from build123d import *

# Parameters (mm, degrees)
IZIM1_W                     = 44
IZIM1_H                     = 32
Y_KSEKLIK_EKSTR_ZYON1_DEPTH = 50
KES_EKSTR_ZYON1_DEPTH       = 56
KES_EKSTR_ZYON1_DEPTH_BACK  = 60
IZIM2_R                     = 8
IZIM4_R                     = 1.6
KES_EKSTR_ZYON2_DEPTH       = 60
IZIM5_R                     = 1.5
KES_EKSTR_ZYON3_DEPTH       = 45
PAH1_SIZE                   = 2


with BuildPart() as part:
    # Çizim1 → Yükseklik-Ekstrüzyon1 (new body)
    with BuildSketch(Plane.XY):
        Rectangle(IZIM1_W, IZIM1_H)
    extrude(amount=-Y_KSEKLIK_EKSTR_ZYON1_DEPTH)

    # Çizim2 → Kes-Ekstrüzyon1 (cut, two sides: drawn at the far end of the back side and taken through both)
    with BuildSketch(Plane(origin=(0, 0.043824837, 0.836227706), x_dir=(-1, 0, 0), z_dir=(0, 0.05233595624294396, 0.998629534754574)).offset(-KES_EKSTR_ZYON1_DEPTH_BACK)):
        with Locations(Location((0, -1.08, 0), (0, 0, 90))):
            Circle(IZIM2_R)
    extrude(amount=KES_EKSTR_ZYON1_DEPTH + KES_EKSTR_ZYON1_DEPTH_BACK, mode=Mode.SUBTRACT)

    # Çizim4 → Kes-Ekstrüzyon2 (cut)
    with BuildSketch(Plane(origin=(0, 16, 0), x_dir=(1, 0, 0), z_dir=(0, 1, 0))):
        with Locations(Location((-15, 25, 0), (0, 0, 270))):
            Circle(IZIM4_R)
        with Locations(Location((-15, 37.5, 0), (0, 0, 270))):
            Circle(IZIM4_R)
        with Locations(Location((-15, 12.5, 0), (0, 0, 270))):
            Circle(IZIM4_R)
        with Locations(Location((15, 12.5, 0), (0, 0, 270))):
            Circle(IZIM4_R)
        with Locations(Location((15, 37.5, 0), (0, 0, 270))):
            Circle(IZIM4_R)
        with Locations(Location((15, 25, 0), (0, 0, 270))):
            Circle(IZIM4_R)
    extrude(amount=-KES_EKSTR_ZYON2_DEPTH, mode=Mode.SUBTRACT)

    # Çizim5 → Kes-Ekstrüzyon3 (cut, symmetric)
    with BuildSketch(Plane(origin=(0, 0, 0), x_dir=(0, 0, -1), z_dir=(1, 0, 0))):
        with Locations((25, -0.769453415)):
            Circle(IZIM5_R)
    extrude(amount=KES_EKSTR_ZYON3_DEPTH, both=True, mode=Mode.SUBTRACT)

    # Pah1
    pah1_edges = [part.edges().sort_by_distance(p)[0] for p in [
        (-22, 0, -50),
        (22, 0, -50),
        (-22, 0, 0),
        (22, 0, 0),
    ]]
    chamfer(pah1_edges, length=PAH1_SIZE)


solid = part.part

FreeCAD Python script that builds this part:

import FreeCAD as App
import Part
import Sketcher
Q = App.Units.Quantity


def edges_at(feature, points):
    """Names of the edges that pass closest to the given points."""
    edges = feature.Shape.Edges
    near = lambda p: min(range(len(edges)), key=lambda i: edges[i].distToShape(Part.Vertex(*p))[0])
    return sorted({f"Edge{near(p) + 1}" for p in points})


def add_polygon(sketch, points):
    """Adds a closed chain of lines whose ends are joined by coincident constraints."""
    first, n = sketch.GeometryCount, len(points)
    for a, b in zip(points, points[1:] + points[:1]):
        sketch.addGeometry(Part.LineSegment(App.Vector(*a, 0), App.Vector(*b, 0)), False)
    for i in range(n):
        sketch.addConstraint(Sketcher.Constraint("Coincident", first + i, 2, first + (i + 1) % n, 1))

doc = App.newDocument("Part")
params = doc.addObject("Spreadsheet::Sheet", "Params")
for row, (alias, value) in enumerate([
    ("sketch1_width", "44 mm"),
    ("sketch1_height", "32 mm"),
    ("pad1_length", "50 mm"),
    ("sketch2_diameter", "16 mm"),
    ("sketch3_diameter", "3.2 mm"),
    ("pocket2_length", "60 mm"),
    ("sketch4_diameter", "3 mm"),
    ("pocket3_length", "90 mm"),
    ("chamfer_size", "2 mm"),
], start=1):
    params.set(f"A{row}", alias)
    params.set(f"B{row}", "=" + value)
    params.setAlias(f"B{row}", alias)

body = doc.addObject("PartDesign::Body", "Body")

# Sketch on XY plane
sketch1 = body.newObject("Sketcher::SketchObject", "Sketch")
sketch1.AttachmentSupport = (doc.getObject("XY_Plane"), [""])
sketch1.MapMode = "FlatFace"
add_polygon(sketch1, [(-22, 16), (-22, -16), (22, -16), (22, 16)])  # lines 0-3
sketch1.addConstraint(Sketcher.Constraint("Vertical", 0))
sketch1.addConstraint(Sketcher.Constraint("Horizontal", 1))
sketch1.addConstraint(Sketcher.Constraint("Vertical", 2))
sketch1.addConstraint(Sketcher.Constraint("Horizontal", 3))
sketch1.addConstraint(Sketcher.Constraint("Symmetric", 0, 2, 2, 2, -1, 1))
sketch1.addConstraint(Sketcher.Constraint("DistanceX", 1, 1, 1, 2, Q("44 mm")))
sketch1.addConstraint(Sketcher.Constraint("DistanceY", 0, 2, 0, 1, Q("32 mm")))
sketch1.setExpression("Constraints[9]", "Params.sketch1_width")
sketch1.setExpression("Constraints[10]", "Params.sketch1_height")
pad1 = body.newObject("PartDesign::Pad", "Pad")
pad1.Profile = sketch1
pad1.setExpression("Length", "Params.pad1_length")
pad1.Reversed = True

# Sketch on an angled plane
sketch2 = body.newObject("Sketcher::SketchObject", "Sketch001")
sketch2.Placement = App.Placement(App.Vector(0, 0.043825, 0.836228), App.Rotation(App.Vector(-1, 0, 0), App.Vector(0, -0.998629535, 0.052335956), App.Vector(0, 0.052335956, 0.998629535), "ZXY"))
sketch2.addGeometry(Part.Circle(App.Vector(0, -1, 0), App.Vector(0, 0, 1), 8), False)
sketch2.addConstraint(Sketcher.Constraint("PointOnObject", 0, 3, -2))
sketch2.addConstraint(Sketcher.Constraint("Diameter", 0, Q("16 mm")))
sketch2.addConstraint(Sketcher.Constraint("DistanceY", 0, 3, -1, 1, Q("1.08 mm")))
sketch2.setExpression("Constraints[1]", "Params.sketch2_diameter")
pocket1 = body.newObject("PartDesign::Pocket", "Pocket")
pocket1.Profile = sketch2
pocket1.Type = "ThroughAll"
pocket1.Midplane = True

# Sketch on XZ plane
sketch3 = body.newObject("Sketcher::SketchObject", "Sketch002")
sketch3.AttachmentSupport = (doc.getObject("XZ_Plane"), [""])
sketch3.MapMode = "FlatFace"
sketch3.AttachmentOffset = App.Placement(App.Vector(0, 0, -16), App.Rotation())
sketch3.addGeometry(Part.Circle(App.Vector(-15, -25, 0), App.Vector(0, 0, 1), 1.6), False)
sketch3.addGeometry(Part.Circle(App.Vector(-15, -37.5, 0), App.Vector(0, 0, 1), 1.6), False)
sketch3.addGeometry(Part.Circle(App.Vector(-15, -12.5, 0), App.Vector(0, 0, 1), 1.6), False)
sketch3.addGeometry(Part.Circle(App.Vector(15, -12.5, 0), App.Vector(0, 0, 1), 1.6), False)
sketch3.addGeometry(Part.Circle(App.Vector(15, -37.5, 0), App.Vector(0, 0, 1), 1.6), False)
sketch3.addGeometry(Part.Circle(App.Vector(15, -25, 0), App.Vector(0, 0, 1), 1.6), False)
sketch3.addConstraint(Sketcher.Constraint("Equal", 0, 1))
sketch3.addConstraint(Sketcher.Constraint("Equal", 1, 2))
sketch3.addConstraint(Sketcher.Constraint("Equal", 2, 3))
sketch3.addConstraint(Sketcher.Constraint("Equal", 3, 4))
sketch3.addConstraint(Sketcher.Constraint("Equal", 4, 5))
sketch3.addConstraint(Sketcher.Constraint("Symmetric", 2, 3, 3, 3, -2))
sketch3.addConstraint(Sketcher.Constraint("Symmetric", 1, 3, 4, 3, -2))
sketch3.addConstraint(Sketcher.Constraint("Symmetric", 0, 3, 5, 3, -2))
sketch3.addConstraint(Sketcher.Constraint("Vertical", 0, 3, 1, 3))
sketch3.addConstraint(Sketcher.Constraint("Vertical", 1, 3, 2, 3))
sketch3.addConstraint(Sketcher.Constraint("Diameter", 0, Q("3.2 mm")))
sketch3.addConstraint(Sketcher.Constraint("DistanceX", 0, 3, -1, 1, Q("15 mm")))
sketch3.addConstraint(Sketcher.Constraint("DistanceY", 0, 3, -1, 1, Q("25 mm")))
sketch3.addConstraint(Sketcher.Constraint("DistanceY", 1, 3, 2, 3, Q("25 mm")))
sketch3.addConstraint(Sketcher.Constraint("DistanceY", 1, 3, -1, 1, Q("37.5 mm")))
sketch3.setExpression("Constraints[10]", "Params.sketch3_diameter")
pocket2 = body.newObject("PartDesign::Pocket", "Pocket001")
pocket2.Profile = sketch3
pocket2.setExpression("Length", "Params.pocket2_length")
pocket2.Reversed = True

# Sketch on YZ plane
sketch4 = body.newObject("Sketcher::SketchObject", "Sketch003")
sketch4.AttachmentSupport = (doc.getObject("YZ_Plane"), [""])
sketch4.MapMode = "FlatFace"
sketch4.addGeometry(Part.Circle(App.Vector(-0.8, -25, 0), App.Vector(0, 0, 1), 1.5), False)
sketch4.addConstraint(Sketcher.Constraint("Diameter", 0, Q("3 mm")))
sketch4.addConstraint(Sketcher.Constraint("DistanceY", 0, 3, -1, 1, Q("25 mm")))
sketch4.addConstraint(Sketcher.Constraint("DistanceX", 0, 3, -1, 1, Q("0.769453 mm")))
sketch4.setExpression("Constraints[0]", "Params.sketch4_diameter")
pocket3 = body.newObject("PartDesign::Pocket", "Pocket002")
pocket3.Profile = sketch4
pocket3.setExpression("Length", "Params.pocket3_length")
pocket3.Midplane = True
doc.recompute()

chamfer = body.newObject("PartDesign::Chamfer", "Chamfer")
chamfer.Base = (pocket3, edges_at(pocket3, [
    (-22, 0, -50),
    (22, 0, -50),
    (-22, 0, 0),
    (22, 0, 0),
]))
chamfer.setExpression("Size", "Params.chamfer_size")

doc.recompute()
